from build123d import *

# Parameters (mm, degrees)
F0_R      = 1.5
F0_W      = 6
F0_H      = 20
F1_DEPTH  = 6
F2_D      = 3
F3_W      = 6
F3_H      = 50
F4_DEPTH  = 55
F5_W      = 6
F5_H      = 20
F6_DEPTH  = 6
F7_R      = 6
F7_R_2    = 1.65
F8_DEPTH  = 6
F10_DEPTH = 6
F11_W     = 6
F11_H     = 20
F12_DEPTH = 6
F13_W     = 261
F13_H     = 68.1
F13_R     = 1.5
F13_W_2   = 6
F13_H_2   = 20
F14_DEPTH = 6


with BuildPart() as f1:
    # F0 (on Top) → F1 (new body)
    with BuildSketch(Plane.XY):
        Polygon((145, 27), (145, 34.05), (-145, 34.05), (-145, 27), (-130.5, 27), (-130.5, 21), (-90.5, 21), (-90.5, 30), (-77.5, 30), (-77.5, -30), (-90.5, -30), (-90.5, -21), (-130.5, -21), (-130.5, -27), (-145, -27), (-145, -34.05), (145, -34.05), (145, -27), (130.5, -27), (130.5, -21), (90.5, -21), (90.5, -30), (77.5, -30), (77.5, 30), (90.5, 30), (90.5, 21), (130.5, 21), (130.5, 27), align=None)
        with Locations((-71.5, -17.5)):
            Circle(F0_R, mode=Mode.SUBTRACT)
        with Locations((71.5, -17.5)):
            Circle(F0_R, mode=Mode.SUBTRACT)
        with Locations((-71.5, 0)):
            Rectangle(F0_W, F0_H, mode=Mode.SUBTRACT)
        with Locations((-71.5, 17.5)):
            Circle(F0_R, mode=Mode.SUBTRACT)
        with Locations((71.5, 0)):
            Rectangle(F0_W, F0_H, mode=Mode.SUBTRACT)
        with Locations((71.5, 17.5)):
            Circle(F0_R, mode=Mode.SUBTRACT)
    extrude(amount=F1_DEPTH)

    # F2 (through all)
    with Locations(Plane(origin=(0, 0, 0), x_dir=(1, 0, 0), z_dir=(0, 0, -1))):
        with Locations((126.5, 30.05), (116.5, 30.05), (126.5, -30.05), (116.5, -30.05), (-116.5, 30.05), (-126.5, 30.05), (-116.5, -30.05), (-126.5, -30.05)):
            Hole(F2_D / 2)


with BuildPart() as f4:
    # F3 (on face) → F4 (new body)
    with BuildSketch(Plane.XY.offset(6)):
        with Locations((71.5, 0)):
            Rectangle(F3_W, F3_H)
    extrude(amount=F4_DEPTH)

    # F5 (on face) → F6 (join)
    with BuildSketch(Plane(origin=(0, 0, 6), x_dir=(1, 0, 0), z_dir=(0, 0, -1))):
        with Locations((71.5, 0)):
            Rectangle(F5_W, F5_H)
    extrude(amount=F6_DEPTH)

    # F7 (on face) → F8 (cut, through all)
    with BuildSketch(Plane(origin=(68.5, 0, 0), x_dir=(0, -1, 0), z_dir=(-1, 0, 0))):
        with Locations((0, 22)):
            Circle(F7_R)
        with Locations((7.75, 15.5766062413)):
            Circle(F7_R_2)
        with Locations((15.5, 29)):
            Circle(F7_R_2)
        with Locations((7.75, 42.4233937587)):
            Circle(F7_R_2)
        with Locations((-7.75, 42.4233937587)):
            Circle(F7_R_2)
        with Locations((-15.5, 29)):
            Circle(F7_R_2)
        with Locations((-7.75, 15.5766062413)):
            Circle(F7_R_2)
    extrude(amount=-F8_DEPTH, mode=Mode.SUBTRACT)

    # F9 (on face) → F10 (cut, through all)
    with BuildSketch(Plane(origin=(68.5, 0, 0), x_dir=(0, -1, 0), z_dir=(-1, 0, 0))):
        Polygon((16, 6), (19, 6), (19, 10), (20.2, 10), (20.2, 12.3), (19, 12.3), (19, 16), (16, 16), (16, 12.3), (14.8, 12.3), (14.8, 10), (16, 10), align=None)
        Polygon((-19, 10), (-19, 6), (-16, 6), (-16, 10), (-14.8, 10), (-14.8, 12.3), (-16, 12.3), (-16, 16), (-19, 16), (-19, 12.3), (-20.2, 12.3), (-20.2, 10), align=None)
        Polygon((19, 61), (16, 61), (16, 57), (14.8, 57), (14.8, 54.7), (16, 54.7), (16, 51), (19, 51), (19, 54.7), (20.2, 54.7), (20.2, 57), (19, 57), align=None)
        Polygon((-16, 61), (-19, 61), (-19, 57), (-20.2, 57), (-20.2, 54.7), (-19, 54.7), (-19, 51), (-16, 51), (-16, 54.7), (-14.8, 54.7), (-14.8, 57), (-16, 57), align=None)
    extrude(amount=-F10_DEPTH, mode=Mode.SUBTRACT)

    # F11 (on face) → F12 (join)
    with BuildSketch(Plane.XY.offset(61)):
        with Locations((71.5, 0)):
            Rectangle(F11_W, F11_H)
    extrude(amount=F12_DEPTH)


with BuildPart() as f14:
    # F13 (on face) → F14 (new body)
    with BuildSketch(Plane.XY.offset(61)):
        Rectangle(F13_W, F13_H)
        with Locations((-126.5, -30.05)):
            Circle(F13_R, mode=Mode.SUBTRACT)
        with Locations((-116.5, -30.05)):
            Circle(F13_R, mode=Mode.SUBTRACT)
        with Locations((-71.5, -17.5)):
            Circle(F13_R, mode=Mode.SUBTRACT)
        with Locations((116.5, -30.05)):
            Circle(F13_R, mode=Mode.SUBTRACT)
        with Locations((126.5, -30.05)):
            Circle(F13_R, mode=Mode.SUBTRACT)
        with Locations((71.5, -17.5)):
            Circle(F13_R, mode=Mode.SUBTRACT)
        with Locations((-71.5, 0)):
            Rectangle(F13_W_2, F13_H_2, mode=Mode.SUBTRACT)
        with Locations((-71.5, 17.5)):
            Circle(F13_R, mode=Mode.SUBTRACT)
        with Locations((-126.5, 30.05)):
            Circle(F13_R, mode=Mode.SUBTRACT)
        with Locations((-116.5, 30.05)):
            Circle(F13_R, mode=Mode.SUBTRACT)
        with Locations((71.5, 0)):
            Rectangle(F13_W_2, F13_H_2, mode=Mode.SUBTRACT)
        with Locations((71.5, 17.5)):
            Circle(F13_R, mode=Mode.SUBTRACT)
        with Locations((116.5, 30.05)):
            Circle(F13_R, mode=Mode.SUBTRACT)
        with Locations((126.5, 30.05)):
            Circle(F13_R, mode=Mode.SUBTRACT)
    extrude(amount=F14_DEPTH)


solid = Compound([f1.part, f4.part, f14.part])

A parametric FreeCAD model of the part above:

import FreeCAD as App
import Part
import Sketcher
from FreeCAD import Vector
Q = App.Units.Quantity

doc = App.newDocument("Part")
body = doc.addObject("PartDesign::Body", "Body")

sketch1 = body.newObject("Sketcher::SketchObject", "Sketch")
sketch1.AttachmentSupport = (doc.getObject("XY_Plane"), [""])
sketch1.MapMode = "FlatFace"
sketch1.addGeometry([
    Part.LineSegment(Vector(145, 27, 0), Vector(145, 34.05, 0)),
    Part.LineSegment(Vector(145, 34.05, 0), Vector(-145, 34.05, 0)),
    Part.LineSegment(Vector(-145, 34.05, 0), Vector(-145, 27, 0)),
    Part.LineSegment(Vector(-145, 27, 0), Vector(-130.5, 27, 0)),
    Part.LineSegment(Vector(-130.5, 27, 0), Vector(-130.5, 21, 0)),
    Part.LineSegment(Vector(-130.5, 21, 0), Vector(-90.5, 21, 0)),
    Part.LineSegment(Vector(-90.5, 21, 0), Vector(-90.5, 30, 0)),
    Part.LineSegment(Vector(-90.5, 30, 0), Vector(-77.5, 30, 0)),
    Part.LineSegment(Vector(-77.5, 30, 0), Vector(-77.5, -30, 0)),
    Part.LineSegment(Vector(-77.5, -30, 0), Vector(-90.5, -30, 0)),
    Part.LineSegment(Vector(-90.5, -30, 0), Vector(-90.5, -21, 0)),
    Part.LineSegment(Vector(-90.5, -21, 0), Vector(-130.5, -21, 0)),
    Part.LineSegment(Vector(-130.5, -21, 0), Vector(-130.5, -27, 0)),
    Part.LineSegment(Vector(-130.5, -27, 0), Vector(-145, -27, 0)),
    Part.LineSegment(Vector(-145, -27, 0), Vector(-145, -34.05, 0)),
    Part.LineSegment(Vector(-145, -34.05, 0), Vector(145, -34.05, 0)),
    Part.LineSegment(Vector(145, -34.05, 0), Vector(145, -27, 0)),
    Part.LineSegment(Vector(145, -27, 0), Vector(130.5, -27, 0)),
    Part.LineSegment(Vector(130.5, -27, 0), Vector(130.5, -21, 0)),
    Part.LineSegment(Vector(130.5, -21, 0), Vector(90.5, -21, 0)),
    Part.LineSegment(Vector(90.5, -21, 0), Vector(90.5, -30, 0)),
    Part.LineSegment(Vector(90.5, -30, 0), Vector(77.5, -30, 0)),
    Part.LineSegment(Vector(77.5, -30, 0), Vector(77.5, 30, 0)),
    Part.LineSegment(Vector(77.5, 30, 0), Vector(90.5, 30, 0)),
    Part.LineSegment(Vector(90.5, 30, 0), Vector(90.5, 21, 0)),
    Part.LineSegment(Vector(90.5, 21, 0), Vector(130.5, 21, 0)),
    Part.LineSegment(Vector(130.5, 21, 0), Vector(130.5, 27, 0)),
    Part.LineSegment(Vector(130.5, 27, 0), Vector(145, 27, 0)),
    Part.Circle(Vector(-71.5, -17.5, 0), Vector(0, 0, 1), 1.5),
    Part.Circle(Vector(71.5, -17.5, 0), Vector(0, 0, 1), 1.5),
    Part.LineSegment(Vector(-68.5, -10, 0), Vector(-74.5, -10, 0)),
    Part.LineSegment(Vector(-74.5, -10, 0), Vector(-74.5, 10, 0)),
    Part.LineSegment(Vector(-74.5, 10, 0), Vector(-68.5, 10, 0)),
    Part.LineSegment(Vector(-68.5, 10, 0), Vector(-68.5, -10, 0)),
    Part.Circle(Vector(-71.5, 17.5, 0), Vector(0, 0, 1), 1.5),
    Part.LineSegment(Vector(74.5, -10, 0), Vector(68.5, -10, 0)),
    Part.LineSegment(Vector(68.5, -10, 0), Vector(68.5, 10, 0)),
    Part.LineSegment(Vector(68.5, 10, 0), Vector(74.5, 10, 0)),
    Part.LineSegment(Vector(74.5, 10, 0), Vector(74.5, -10, 0)),
    Part.Circle(Vector(71.5, 17.5, 0), Vector(0, 0, 1), 1.5),
], False)
sketch1.addConstraint([
    Sketcher.Constraint("Coincident", 0, 2, 1, 1),
    Sketcher.Constraint("Coincident", 1, 2, 2, 1),
    Sketcher.Constraint("Coincident", 2, 2, 3, 1),
    Sketcher.Constraint("Coincident", 3, 2, 4, 1),
    Sketcher.Constraint("Coincident", 4, 2, 5, 1),
    Sketcher.Constraint("Coincident", 5, 2, 6, 1),
    Sketcher.Constraint("Coincident", 6, 2, 7, 1),
    Sketcher.Constraint("Coincident", 7, 2, 8, 1),
    Sketcher.Constraint("Coincident", 8, 2, 9, 1),
    Sketcher.Constraint("Coincident", 9, 2, 10, 1),
    Sketcher.Constraint("Coincident", 10, 2, 11, 1),
    Sketcher.Constraint("Coincident", 11, 2, 12, 1),
    Sketcher.Constraint("Coincident", 12, 2, 13, 1),
    Sketcher.Constraint("Coincident", 13, 2, 14, 1),
    Sketcher.Constraint("Coincident", 14, 2, 15, 1),
    Sketcher.Constraint("Coincident", 15, 2, 16, 1),
    Sketcher.Constraint("Coincident", 16, 2, 17, 1),
    Sketcher.Constraint("Coincident", 17, 2, 18, 1),
    Sketcher.Constraint("Coincident", 18, 2, 19, 1),
    Sketcher.Constraint("Coincident", 19, 2, 20, 1),
    Sketcher.Constraint("Coincident", 20, 2, 21, 1),
    Sketcher.Constraint("Coincident", 21, 2, 22, 1),
    Sketcher.Constraint("Coincident", 22, 2, 23, 1),
    Sketcher.Constraint("Coincident", 23, 2, 24, 1),
    Sketcher.Constraint("Coincident", 24, 2, 25, 1),
    Sketcher.Constraint("Coincident", 25, 2, 26, 1),
    Sketcher.Constraint("Coincident", 26, 2, 27, 1),
    Sketcher.Constraint("Coincident", 27, 2, 0, 1),
    Sketcher.Constraint("Coincident", 30, 2, 31, 1),
    Sketcher.Constraint("Coincident", 31, 2, 32, 1),
    Sketcher.Constraint("Coincident", 32, 2, 33, 1),
    Sketcher.Constraint("Coincident", 33, 2, 30, 1),
    Sketcher.Constraint("Coincident", 35, 2, 36, 1),
    Sketcher.Constraint("Coincident", 36, 2, 37, 1),
    Sketcher.Constraint("Coincident", 37, 2, 38, 1),
    Sketcher.Constraint("Coincident", 38, 2, 35, 1),
    Sketcher.Constraint("Vertical", 0),
    Sketcher.Constraint("Horizontal", 1),
    Sketcher.Constraint("Vertical", 2),
    Sketcher.Constraint("Horizontal", 3),
    Sketcher.Constraint("Vertical", 4),
    Sketcher.Constraint("Horizontal", 5),
    Sketcher.Constraint("Vertical", 6),
    Sketcher.Constraint("Horizontal", 7),
    Sketcher.Constraint("Vertical", 8),
    Sketcher.Constraint("Horizontal", 9),
    Sketcher.Constraint("Vertical", 10),
    Sketcher.Constraint("Horizontal", 11),
    Sketcher.Constraint("Vertical", 12),
    Sketcher.Constraint("Horizontal", 13),
    Sketcher.Constraint("Vertical", 14),
    Sketcher.Constraint("Horizontal", 15),
    Sketcher.Constraint("Vertical", 16),
    Sketcher.Constraint("Horizontal", 17),
    Sketcher.Constraint("Vertical", 18),
    Sketcher.Constraint("Horizontal", 19),
    Sketcher.Constraint("Vertical", 20),
    Sketcher.Constraint("Horizontal", 21),
    Sketcher.Constraint("Vertical", 22),
    Sketcher.Constraint("Horizontal", 23),
    Sketcher.Constraint("Vertical", 24),
    Sketcher.Constraint("Horizontal", 25),
    Sketcher.Constraint("Vertical", 26),
    Sketcher.Constraint("Horizontal", 27),
    Sketcher.Constraint("Horizontal", 30),
    Sketcher.Constraint("Vertical", 31),
    Sketcher.Constraint("Horizontal", 32),
    Sketcher.Constraint("Vertical", 33),
    Sketcher.Constraint("Horizontal", 35),
    Sketcher.Constraint("Vertical", 36),
    Sketcher.Constraint("Horizontal", 37),
    Sketcher.Constraint("Vertical", 38),
    Sketcher.Constraint("Equal", 28, 29),
    Sketcher.Constraint("Equal", 29, 34),
    Sketcher.Constraint("Equal", 34, 39),
    Sketcher.Constraint("Symmetric", 29, 3, 34, 3, -1, 1),
    Sketcher.Constraint("Symmetric", 28, 3, 39, 3, -1, 1),
    Sketcher.Constraint("Symmetric", 0, 2, 14, 2, -1, 1),
    Sketcher.Constraint("Symmetric", 2, 2, 16, 2, -1, 1),
    Sketcher.Constraint("Symmetric", 4, 2, 18, 2, -1, 1),
    Sketcher.Constraint("Symmetric", 6, 2, 20, 2, -1, 1),
    Sketcher.Constraint("Symmetric", 8, 2, 22, 2, -1, 1),
    Sketcher.Constraint("Symmetric", 10, 2, 24, 2, -1, 1),
    Sketcher.Constraint("Symmetric", 12, 2, 26, 2, -1, 1),
    Sketcher.Constraint("Symmetric", 32, 2, 35, 2, -1, 1),
    Sketcher.Constraint("Symmetric", 30, 2, 37, 2, -1, 1),
    Sketcher.Constraint("Symmetric", 28, 3, 29, 3, -2),
    Sketcher.Constraint("Symmetric", 13, 2, 16, 2, -2),
    Sketcher.Constraint("Symmetric", 11, 2, 18, 2, -2),
    Sketcher.Constraint("Symmetric", 9, 2, 20, 2, -2),
    Sketcher.Constraint("Horizontal", 33, 2, 35, 2),
    Sketcher.Constraint("Equal", 37, 4),
    Sketcher.Constraint("Diameter", 28, Q("3 mm")),
    Sketcher.Constraint("DistanceX", 1, 2, 1, 1, Q("290 mm")),
    Sketcher.Constraint("DistanceX", 5, 1, 5, 2, Q("40 mm")),
    Sketcher.Constraint("DistanceX", 7, 1, 7, 2, Q("13 mm")),
    Sketcher.Constraint("DistanceX", 30, 2, 30, 1, Q("6 mm")),
    Sketcher.Constraint("DistanceY", 6, 1, 6, 2, Q("9 mm")),
    Sketcher.Constraint("DistanceY", 8, 2, 8, 1, Q("60 mm")),
    Sketcher.Constraint("DistanceY", 31, 1, 31, 2, Q("20 mm")),
    Sketcher.Constraint("DistanceX", 3, 1, 3, 2, Q("14.5 mm")),
    Sketcher.Constraint("DistanceX", 28, 3, 29, 3, Q("143 mm")),
    Sketcher.Constraint("DistanceY", 28, 3, 34, 3, Q("35 mm")),
    Sketcher.Constraint("DistanceX", 30, 2, 28, 3, Q("3 mm")),
    Sketcher.Constraint("DistanceY", 0, 1, 0, 2, Q("7.05 mm")),
])
pad1 = body.newObject("PartDesign::Pad", "Pad")
pad1.Profile = sketch1
pad1.Length = 6

sketch2 = body.newObject("Sketcher::SketchObject", "Sketch001")
sketch2.AttachmentSupport = (doc.getObject("XY_Plane"), [""])
sketch2.MapMode = "FlatFace"
sketch2.addGeometry([
    Part.Circle(Vector(126.5, -30.05, 0), Vector(0, 0, 1), 1.5),
    Part.Circle(Vector(116.5, -30.05, 0), Vector(0, 0, 1), 1.5),
    Part.Circle(Vector(126.5, 30.05, 0), Vector(0, 0, 1), 1.5),
    Part.Circle(Vector(116.5, 30.05, 0), Vector(0, 0, 1), 1.5),
    Part.Circle(Vector(-116.5, -30.05, 0), Vector(0, 0, 1), 1.5),
    Part.Circle(Vector(-126.5, -30.05, 0), Vector(0, 0, 1), 1.5),
    Part.Circle(Vector(-116.5, 30.05, 0), Vector(0, 0, 1), 1.5),
    Part.Circle(Vector(-126.5, 30.05, 0), Vector(0, 0, 1), 1.5),
], False)
sketch2.addConstraint([
    Sketcher.Constraint("Equal", 0, 1),
    Sketcher.Constraint("Equal", 1, 2),
    Sketcher.Constraint("Equal", 2, 3),
    Sketcher.Constraint("Equal", 3, 4),
    Sketcher.Constraint("Equal", 4, 5),
    Sketcher.Constraint("Equal", 5, 6),
    Sketcher.Constraint("Equal", 6, 7),
    Sketcher.Constraint("Symmetric", 3, 3, 4, 3, -1, 1),
    Sketcher.Constraint("Symmetric", 2, 3, 5, 3, -1, 1),
    Sketcher.Constraint("Symmetric", 1, 3, 6, 3, -1, 1),
    Sketcher.Constraint("Symmetric", 0, 3, 7, 3, -1, 1),
    Sketcher.Constraint("Symmetric", 1, 3, 4, 3, -2),
    Sketcher.Constraint("Symmetric", 0, 3, 5, 3, -2),
    Sketcher.Constraint("Horizontal", 0, 3, 1, 3),
    Sketcher.Constraint("Diameter", 0, Q("3 mm")),
    Sketcher.Constraint("DistanceX", 1, 3, 0, 3, Q("10 mm")),
    Sketcher.Constraint("DistanceX", 4, 3, 1, 3, Q("233 mm")),
    Sketcher.Constraint("DistanceY", 0, 3, 2, 3, Q("60.1 mm")),
])
doc.recompute()
hole = body.newObject("PartDesign::Hole", "Hole")
hole.Profile = sketch2
hole.ThreadType = "None"
hole.Diameter = 3
hole.DepthType = "ThroughAll"
hole.Reversed = True
body2 = doc.addObject("PartDesign::Body", "Body001")

sketch3 = body2.newObject("Sketcher::SketchObject", "Sketch002")
sketch3.AttachmentSupport = (doc.getObject("XY_Plane001"), [""])
sketch3.MapMode = "FlatFace"
sketch3.AttachmentOffset = App.Placement(Vector(0, 0, 6), App.Rotation())
sketch3.addGeometry([
    Part.LineSegment(Vector(68.5, 25, 0), Vector(68.5, -25, 0)),
    Part.LineSegment(Vector(68.5, -25, 0), Vector(74.5, -25, 0)),
    Part.LineSegment(Vector(74.5, -25, 0), Vector(74.5, 25, 0)),
    Part.LineSegment(Vector(74.5, 25, 0), Vector(68.5, 25, 0)),
], False)
sketch3.addConstraint([
    Sketcher.Constraint("Coincident", 0, 2, 1, 1),
    Sketcher.Constraint("Coincident", 1, 2, 2, 1),
    Sketcher.Constraint("Coincident", 2, 2, 3, 1),
    Sketcher.Constraint("Coincident", 3, 2, 0, 1),
    Sketcher.Constraint("Vertical", 0),
    Sketcher.Constraint("Horizontal", 1),
    Sketcher.Constraint("Vertical", 2),
    Sketcher.Constraint("Horizontal", 3),
    Sketcher.Constraint("DistanceX", 1, 1, 1, 2, Q("6 mm")),
    Sketcher.Constraint("DistanceY", 0, 2, 0, 1, Q("50 mm")),
    Sketcher.Constraint("DistanceY", 0, 2, -1, 1, Q("25 mm")),
    Sketcher.Constraint("DistanceX", -1, 1, 0, 2, Q("68.5 mm")),
])
pad2 = body2.newObject("PartDesign::Pad", "Pad001")
pad2.Profile = sketch3
pad2.Length = 55

sketch4 = body2.newObject("Sketcher::SketchObject", "Sketch003")
sketch4.AttachmentSupport = (doc.getObject("XY_Plane001"), [""])
sketch4.MapMode = "FlatFace"
sketch4.AttachmentOffset = App.Placement(Vector(0, 0, 6), App.Rotation())
sketch4.addGeometry([
    Part.LineSegment(Vector(68.5, -10, 0), Vector(68.5, 10, 0)),
    Part.LineSegment(Vector(68.5, 10, 0), Vector(74.5, 10, 0)),
    Part.LineSegment(Vector(74.5, 10, 0), Vector(74.5, -10, 0)),
    Part.LineSegment(Vector(74.5, -10, 0), Vector(68.5, -10, 0)),
], False)
sketch4.addConstraint([
    Sketcher.Constraint("Coincident", 0, 2, 1, 1),
    Sketcher.Constraint("Coincident", 1, 2, 2, 1),
    Sketcher.Constraint("Coincident", 2, 2, 3, 1),
    Sketcher.Constraint("Coincident", 3, 2, 0, 1),
    Sketcher.Constraint("Vertical", 0),
    Sketcher.Constraint("Horizontal", 1),
    Sketcher.Constraint("Vertical", 2),
    Sketcher.Constraint("Horizontal", 3),
    Sketcher.Constraint("DistanceX", 1, 1, 1, 2, Q("6 mm")),
    Sketcher.Constraint("DistanceY", 0, 1, 0, 2, Q("20 mm")),
    Sketcher.Constraint("DistanceY", -1, 1, 0, 2, Q("10 mm")),
    Sketcher.Constraint("DistanceX", -1, 1, 0, 2, Q("68.5 mm")),
])
pad3 = body2.newObject("PartDesign::Pad", "Pad002")
pad3.Profile = sketch4
pad3.Length = 6
pad3.Reversed = True

sketch5 = body2.newObject("Sketcher::SketchObject", "Sketch004")
sketch5.AttachmentSupport = (doc.getObject("YZ_Plane001"), [""])
sketch5.MapMode = "FlatFace"
sketch5.AttachmentOffset = App.Placement(Vector(0, 0, 68.5), App.Rotation())
sketch5.addGeometry([
    Part.Circle(Vector(0, 22, 0), Vector(0, 0, 1), 6),
    Part.Circle(Vector(-7.75, 15.576606, 0), Vector(0, 0, 1), 1.65),
    Part.Circle(Vector(-15.5, 29, 0), Vector(0, 0, 1), 1.65),
    Part.Circle(Vector(-7.75, 42.423394, 0), Vector(0, 0, 1), 1.65),
    Part.Circle(Vector(7.75, 42.423394, 0), Vector(0, 0, 1), 1.65),
    Part.Circle(Vector(15.5, 29, 0), Vector(0, 0, 1), 1.65),
    Part.Circle(Vector(7.75, 15.576606, 0), Vector(0, 0, 1), 1.65),
], False)
sketch5.addConstraint([
    Sketcher.Constraint("Equal", 1, 2),
    Sketcher.Constraint("Equal", 2, 3),
    Sketcher.Constraint("Equal", 3, 4),
    Sketcher.Constraint("Equal", 4, 5),
    Sketcher.Constraint("Equal", 5, 6),
    Sketcher.Constraint("Symmetric", 3, 3, 4, 3, -2),
    Sketcher.Constraint("Symmetric", 2, 3, 5, 3, -2),
    Sketcher.Constraint("Symmetric", 1, 3, 6, 3, -2),
    Sketcher.Constraint("PointOnObject", 0, 3, -2),
    Sketcher.Constraint("Vertical", 1, 3, 3, 3),
    Sketcher.Constraint("Diameter", 0, Q("12 mm")),
    Sketcher.Constraint("Diameter", 1, Q("3.3 mm")),
    Sketcher.Constraint("DistanceY", -1, 1, 0, 3, Q("22 mm")),
    Sketcher.Constraint("DistanceY", -1, 1, 2, 3, Q("29 mm")),
    Sketcher.Constraint("DistanceX", 2, 3, 5, 3, Q("31 mm")),
    Sketcher.Constraint("DistanceX", 3, 3, 4, 3, Q("15.5 mm")),
    Sketcher.Constraint("DistanceY", -1, 1, 1, 3, Q("15.576606 mm")),
    Sketcher.Constraint("DistanceY", -1, 1, 3, 3, Q("42.423394 mm")),
])
pocket1 = body2.newObject("PartDesign::Pocket", "Pocket")
pocket1.Profile = sketch5
pocket1.Type = "ThroughAll"
pocket1.Reversed = True

sketch6 = body2.newObject("Sketcher::SketchObject", "Sketch005")
sketch6.AttachmentSupport = (doc.getObject("YZ_Plane001"), [""])
sketch6.MapMode = "FlatFace"
sketch6.AttachmentOffset = App.Placement(Vector(0, 0, 68.5), App.Rotation())
sketch6.addGeometry([
    Part.LineSegment(Vector(-16, 6, 0), Vector(-19, 6, 0)),
    Part.LineSegment(Vector(-19, 6, 0), Vector(-19, 10, 0)),
    Part.LineSegment(Vector(-19, 10, 0), Vector(-20.2, 10, 0)),
    Part.LineSegment(Vector(-20.2, 10, 0), Vector(-20.2, 12.3, 0)),
    Part.LineSegment(Vector(-20.2, 12.3, 0), Vector(-19, 12.3, 0)),
    Part.LineSegment(Vector(-19, 12.3, 0), Vector(-19, 16, 0)),
    Part.LineSegment(Vector(-19, 16, 0), Vector(-16, 16, 0)),
    Part.LineSegment(Vector(-16, 16, 0), Vector(-16, 12.3, 0)),
    Part.LineSegment(Vector(-16, 12.3, 0), Vector(-14.8, 12.3, 0)),
    Part.LineSegment(Vector(-14.8, 12.3, 0), Vector(-14.8, 10, 0)),
    Part.LineSegment(Vector(-14.8, 10, 0), Vector(-16, 10, 0)),
    Part.LineSegment(Vector(-16, 10, 0), Vector(-16, 6, 0)),
    Part.LineSegment(Vector(19, 10, 0), Vector(19, 6, 0)),
    Part.LineSegment(Vector(19, 6, 0), Vector(16, 6, 0)),
    Part.LineSegment(Vector(16, 6, 0), Vector(16, 10, 0)),
    Part.LineSegment(Vector(16, 10, 0), Vector(14.8, 10, 0)),
    Part.LineSegment(Vector(14.8, 10, 0), Vector(14.8, 12.3, 0)),
    Part.LineSegment(Vector(14.8, 12.3, 0), Vector(16, 12.3, 0)),
    Part.LineSegment(Vector(16, 12.3, 0), Vector(16, 16, 0)),
    Part.LineSegment(Vector(16, 16, 0), Vector(19, 16, 0)),
    Part.LineSegment(Vector(19, 16, 0), Vector(19, 12.3, 0)),
    Part.LineSegment(Vector(19, 12.3, 0), Vector(20.2, 12.3, 0)),
    Part.LineSegment(Vector(20.2, 12.3, 0), Vector(20.2, 10, 0)),
    Part.LineSegment(Vector(20.2, 10, 0), Vector(19, 10, 0)),
    Part.LineSegment(Vector(-19, 61, 0), Vector(-16, 61, 0)),
    Part.LineSegment(Vector(-16, 61, 0), Vector(-16, 57, 0)),
    Part.LineSegment(Vector(-16, 57, 0), Vector(-14.8, 57, 0)),
    Part.LineSegment(Vector(-14.8, 57, 0), Vector(-14.8, 54.7, 0)),
    Part.LineSegment(Vector(-14.8, 54.7, 0), Vector(-16, 54.7, 0)),
    Part.LineSegment(Vector(-16, 54.7, 0), Vector(-16, 51, 0)),
    Part.LineSegment(Vector(-16, 51, 0), Vector(-19, 51, 0)),
    Part.LineSegment(Vector(-19, 51, 0), Vector(-19, 54.7, 0)),
    Part.LineSegment(Vector(-19, 54.7, 0), Vector(-20.2, 54.7, 0)),
    Part.LineSegment(Vector(-20.2, 54.7, 0), Vector(-20.2, 57, 0)),
    Part.LineSegment(Vector(-20.2, 57, 0), Vector(-19, 57, 0)),
    Part.LineSegment(Vector(-19, 57, 0), Vector(-19, 61, 0)),
    Part.LineSegment(Vector(16, 61, 0), Vector(19, 61, 0)),
    Part.LineSegment(Vector(19, 61, 0), Vector(19, 57, 0)),
    Part.LineSegment(Vector(19, 57, 0), Vector(20.2, 57, 0)),
    Part.LineSegment(Vector(20.2, 57, 0), Vector(20.2, 54.7, 0)),
    Part.LineSegment(Vector(20.2, 54.7, 0), Vector(19, 54.7, 0)),
    Part.LineSegment(Vector(19, 54.7, 0), Vector(19, 51, 0)),
    Part.LineSegment(Vector(19, 51, 0), Vector(16, 51, 0)),
    Part.LineSegment(Vector(16, 51, 0), Vector(16, 54.7, 0)),
    Part.LineSegment(Vector(16, 54.7, 0), Vector(14.8, 54.7, 0)),
    Part.LineSegment(Vector(14.8, 54.7, 0), Vector(14.8, 57, 0)),
    Part.LineSegment(Vector(14.8, 57, 0), Vector(16, 57, 0)),
    Part.LineSegment(Vector(16, 57, 0), Vector(16, 61, 0)),
], False)
sketch6.addConstraint([
    Sketcher.Constraint("Coincident", 0, 2, 1, 1),
    Sketcher.Constraint("Coincident", 1, 2, 2, 1),
    Sketcher.Constraint("Coincident", 2, 2, 3, 1),
    Sketcher.Constraint("Coincident", 3, 2, 4, 1),
    Sketcher.Constraint("Coincident", 4, 2, 5, 1),
    Sketcher.Constraint("Coincident", 5, 2, 6, 1),
    Sketcher.Constraint("Coincident", 6, 2, 7, 1),
    Sketcher.Constraint("Coincident", 7, 2, 8, 1),
    Sketcher.Constraint("Coincident", 8, 2, 9, 1),
    Sketcher.Constraint("Coincident", 9, 2, 10, 1),
    Sketcher.Constraint("Coincident", 10, 2, 11, 1),
    Sketcher.Constraint("Coincident", 11, 2, 0, 1),
    Sketcher.Constraint("Coincident", 12, 2, 13, 1),
    Sketcher.Constraint("Coincident", 13, 2, 14, 1),
    Sketcher.Constraint("Coincident", 14, 2, 15, 1),
    Sketcher.Constraint("Coincident", 15, 2, 16, 1),
    Sketcher.Constraint("Coincident", 16, 2, 17, 1),
    Sketcher.Constraint("Coincident", 17, 2, 18, 1),
    Sketcher.Constraint("Coincident", 18, 2, 19, 1),
    Sketcher.Constraint("Coincident", 19, 2, 20, 1),
    Sketcher.Constraint("Coincident", 20, 2, 21, 1),
    Sketcher.Constraint("Coincident", 21, 2, 22, 1),
    Sketcher.Constraint("Coincident", 22, 2, 23, 1),
    Sketcher.Constraint("Coincident", 23, 2, 12, 1),
    Sketcher.Constraint("Coincident", 24, 2, 25, 1),
    Sketcher.Constraint("Coincident", 25, 2, 26, 1),
    Sketcher.Constraint("Coincident", 26, 2, 27, 1),
    Sketcher.Constraint("Coincident", 27, 2, 28, 1),
    Sketcher.Constraint("Coincident", 28, 2, 29, 1),
    Sketcher.Constraint("Coincident", 29, 2, 30, 1),
    Sketcher.Constraint("Coincident", 30, 2, 31, 1),
    Sketcher.Constraint("Coincident", 31, 2, 32, 1),
    Sketcher.Constraint("Coincident", 32, 2, 33, 1),
    Sketcher.Constraint("Coincident", 33, 2, 34, 1),
    Sketcher.Constraint("Coincident", 34, 2, 35, 1),
    Sketcher.Constraint("Coincident", 35, 2, 24, 1),
    Sketcher.Constraint("Coincident", 36, 2, 37, 1),
    Sketcher.Constraint("Coincident", 37, 2, 38, 1),
    Sketcher.Constraint("Coincident", 38, 2, 39, 1),
    Sketcher.Constraint("Coincident", 39, 2, 40, 1),
    Sketcher.Constraint("Coincident", 40, 2, 41, 1),
    Sketcher.Constraint("Coincident", 41, 2, 42, 1),
    Sketcher.Constraint("Coincident", 42, 2, 43, 1),
    Sketcher.Constraint("Coincident", 43, 2, 44, 1),
    Sketcher.Constraint("Coincident", 44, 2, 45, 1),
    Sketcher.Constraint("Coincident", 45, 2, 46, 1),
    Sketcher.Constraint("Coincident", 46, 2, 47, 1),
    Sketcher.Constraint("Coincident", 47, 2, 36, 1),
    Sketcher.Constraint("Horizontal", 0),
    Sketcher.Constraint("Vertical", 1),
    Sketcher.Constraint("Horizontal", 2),
    Sketcher.Constraint("Vertical", 3),
    Sketcher.Constraint("Horizontal", 4),
    Sketcher.Constraint("Vertical", 5),
    Sketcher.Constraint("Horizontal", 6),
    Sketcher.Constraint("Vertical", 7),
    Sketcher.Constraint("Horizontal", 8),
    Sketcher.Constraint("Vertical", 9),
    Sketcher.Constraint("Horizontal", 10),
    Sketcher.Constraint("Vertical", 11),
    Sketcher.Constraint("Vertical", 12),
    Sketcher.Constraint("Horizontal", 13),
    Sketcher.Constraint("Vertical", 14),
    Sketcher.Constraint("Horizontal", 15),
    Sketcher.Constraint("Vertical", 16),
    Sketcher.Constraint("Horizontal", 17),
    Sketcher.Constraint("Vertical", 18),
    Sketcher.Constraint("Horizontal", 19),
    Sketcher.Constraint("Vertical", 20),
    Sketcher.Constraint("Horizontal", 21),
    Sketcher.Constraint("Vertical", 22),
    Sketcher.Constraint("Horizontal", 23),
    Sketcher.Constraint("Horizontal", 24),
    Sketcher.Constraint("Vertical", 25),
    Sketcher.Constraint("Horizontal", 26),
    Sketcher.Constraint("Vertical", 27),
    Sketcher.Constraint("Horizontal", 28),
    Sketcher.Constraint("Vertical", 29),
    Sketcher.Constraint("Horizontal", 30),
    Sketcher.Constraint("Vertical", 31),
    Sketcher.Constraint("Horizontal", 32),
    Sketcher.Constraint("Vertical", 33),
    Sketcher.Constraint("Horizontal", 34),
    Sketcher.Constraint("Vertical", 35),
    Sketcher.Constraint("Horizontal", 36),
    Sketcher.Constraint("Vertical", 37),
    Sketcher.Constraint("Horizontal", 38),
    Sketcher.Constraint("Vertical", 39),
    Sketcher.Constraint("Horizontal", 40),
    Sketcher.Constraint("Vertical", 41),
    Sketcher.Constraint("Horizontal", 42),
    Sketcher.Constraint("Vertical", 43),
    Sketcher.Constraint("Horizontal", 44),
    Sketcher.Constraint("Vertical", 45),
    Sketcher.Constraint("Horizontal", 46),
    Sketcher.Constraint("Vertical", 47),
    Sketcher.Constraint("Symmetric", 0, 2, 12, 2, -2),
    Sketcher.Constraint("Symmetric", 10, 2, 14, 2, -2),
    Sketcher.Constraint("Symmetric", 8, 2, 16, 2, -2),
    Sketcher.Constraint("Symmetric", 6, 2, 18, 2, -2),
    Sketcher.Constraint("Symmetric", 4, 2, 20, 2, -2),
    Sketcher.Constraint("Symmetric", 2, 2, 22, 2, -2),
    Sketcher.Constraint("Symmetric", 35, 2, 36, 2, -2),
    Sketcher.Constraint("Symmetric", 33, 2, 38, 2, -2),
    Sketcher.Constraint("Symmetric", 31, 2, 40, 2, -2),
    Sketcher.Constraint("Symmetric", 29, 2, 42, 2, -2),
    Sketcher.Constraint("Symmetric", 27, 2, 44, 2, -2),
    Sketcher.Constraint("Symmetric", 25, 2, 46, 2, -2),
    Sketcher.Constraint("Horizontal", 4, 2, 7, 2),
    Sketcher.Constraint("Horizontal", 2, 2, 9, 2),
    Sketcher.Constraint("Horizontal", 28, 2, 31, 2),
    Sketcher.Constraint("Horizontal", 26, 2, 33, 2),
    Sketcher.Constraint("Vertical", 1, 2, 4, 2),
    Sketcher.Constraint("Vertical", 7, 2, 10, 2),
    Sketcher.Constraint("Vertical", 11, 2, 24, 2),
    Sketcher.Constraint("Vertical", 9, 2, 26, 2),
    Sketcher.Constraint("Vertical", 25, 2, 28, 2),
    Sketcher.Constraint("Vertical", 5, 2, 30, 2),
    Sketcher.Constraint("Vertical", 3, 2, 32, 2),
    Sketcher.Constraint("Vertical", 31, 2, 34, 2),
    Sketcher.Constraint("Equal", 4, 8),
    Sketcher.Constraint("Equal", 14, 25),
    Sketcher.Constraint("Equal", 22, 27),
    Sketcher.Constraint("Equal", 20, 29),
    Sketcher.Constraint("DistanceX", 0, 2, 0, 1, Q("3 mm")),
    Sketcher.Constraint("DistanceY", 1, 1, 1, 2, Q("4 mm")),
    Sketcher.Constraint("DistanceX", 2, 2, 2, 1, Q("1.2 mm")),
    Sketcher.Constraint("DistanceY", 3, 1, 3, 2, Q("2.3 mm")),
    Sketcher.Constraint("DistanceY", 5, 1, 5, 2, Q("3.7 mm")),
    Sketcher.Constraint("DistanceX", 0, 2, -1, 1, Q("19 mm")),
    Sketcher.Constraint("DistanceY", -1, 1, 0, 2, Q("6 mm")),
    Sketcher.Constraint("DistanceY", -1, 1, 24, 2, Q("61 mm")),
])
pocket2 = body2.newObject("PartDesign::Pocket", "Pocket001")
pocket2.Profile = sketch6
pocket2.Type = "ThroughAll"
pocket2.Reversed = True

sketch7 = body2.newObject("Sketcher::SketchObject", "Sketch006")
sketch7.AttachmentSupport = (doc.getObject("XY_Plane001"), [""])
sketch7.MapMode = "FlatFace"
sketch7.AttachmentOffset = App.Placement(Vector(0, 0, 61), App.Rotation())
sketch7.addGeometry([
    Part.LineSegment(Vector(68.5, 10, 0), Vector(68.5, -10, 0)),
    Part.LineSegment(Vector(68.5, -10, 0), Vector(74.5, -10, 0)),
    Part.LineSegment(Vector(74.5, -10, 0), Vector(74.5, 10, 0)),
    Part.LineSegment(Vector(74.5, 10, 0), Vector(68.5, 10, 0)),
], False)
sketch7.addConstraint([
    Sketcher.Constraint("Coincident", 0, 2, 1, 1),
    Sketcher.Constraint("Coincident", 1, 2, 2, 1),
    Sketcher.Constraint("Coincident", 2, 2, 3, 1),
    Sketcher.Constraint("Coincident", 3, 2, 0, 1),
    Sketcher.Constraint("Vertical", 0),
    Sketcher.Constraint("Horizontal", 1),
    Sketcher.Constraint("Vertical", 2),
    Sketcher.Constraint("Horizontal", 3),
    Sketcher.Constraint("DistanceX", 1, 1, 1, 2, Q("6 mm")),
    Sketcher.Constraint("DistanceY", 0, 2, 0, 1, Q("20 mm")),
    Sketcher.Constraint("DistanceY", 0, 2, -1, 1, Q("10 mm")),
    Sketcher.Constraint("DistanceX", -1, 1, 0, 2, Q("68.5 mm")),
])
pad4 = body2.newObject("PartDesign::Pad", "Pad003")
pad4.Profile = sketch7
pad4.Length = 6
body3 = doc.addObject("PartDesign::Body", "Body002")

sketch8 = body3.newObject("Sketcher::SketchObject", "Sketch007")
sketch8.AttachmentSupport = (doc.getObject("XY_Plane002"), [""])
sketch8.MapMode = "FlatFace"
sketch8.AttachmentOffset = App.Placement(Vector(0, 0, 61), App.Rotation())
sketch8.addGeometry([
    Part.LineSegment(Vector(-130.5, 34.05, 0), Vector(-130.5, -34.05, 0)),
    Part.LineSegment(Vector(-130.5, -34.05, 0), Vector(130.5, -34.05, 0)),
    Part.LineSegment(Vector(130.5, -34.05, 0), Vector(130.5, 34.05, 0)),
    Part.LineSegment(Vector(130.5, 34.05, 0), Vector(-130.5, 34.05, 0)),
    Part.Circle(Vector(-126.5, -30.05, 0), Vector(0, 0, 1), 1.5),
    Part.Circle(Vector(-116.5, -30.05, 0), Vector(0, 0, 1), 1.5),
    Part.Circle(Vector(-71.5, -17.5, 0), Vector(0, 0, 1), 1.5),
    Part.Circle(Vector(116.5, -30.05, 0), Vector(0, 0, 1), 1.5),
    Part.Circle(Vector(126.5, -30.05, 0), Vector(0, 0, 1), 1.5),
    Part.Circle(Vector(71.5, -17.5, 0), Vector(0, 0, 1), 1.5),
    Part.LineSegment(Vector(-68.5, -10, 0), Vector(-74.5, -10, 0)),
    Part.LineSegment(Vector(-74.5, -10, 0), Vector(-74.5, 10, 0)),
    Part.LineSegment(Vector(-74.5, 10, 0), Vector(-68.5, 10, 0)),
    Part.LineSegment(Vector(-68.5, 10, 0), Vector(-68.5, -10, 0)),
    Part.Circle(Vector(-71.5, 17.5, 0), Vector(0, 0, 1), 1.5),
    Part.Circle(Vector(-126.5, 30.05, 0), Vector(0, 0, 1), 1.5),
    Part.Circle(Vector(-116.5, 30.05, 0), Vector(0, 0, 1), 1.5),
    Part.LineSegment(Vector(74.5, -10, 0), Vector(68.5, -10, 0)),
    Part.LineSegment(Vector(68.5, -10, 0), Vector(68.5, 10, 0)),
    Part.LineSegment(Vector(68.5, 10, 0), Vector(74.5, 10, 0)),
    Part.LineSegment(Vector(74.5, 10, 0), Vector(74.5, -10, 0)),
    Part.Circle(Vector(71.5, 17.5, 0), Vector(0, 0, 1), 1.5),
    Part.Circle(Vector(116.5, 30.05, 0), Vector(0, 0, 1), 1.5),
    Part.Circle(Vector(126.5, 30.05, 0), Vector(0, 0, 1), 1.5),
], False)
sketch8.addConstraint([
    Sketcher.Constraint("Coincident", 0, 2, 1, 1),
    Sketcher.Constraint("Coincident", 1, 2, 2, 1),
    Sketcher.Constraint("Coincident", 2, 2, 3, 1),
    Sketcher.Constraint("Coincident", 3, 2, 0, 1),
    Sketcher.Constraint("Coincident", 10, 2, 11, 1),
    Sketcher.Constraint("Coincident", 11, 2, 12, 1),
    Sketcher.Constraint("Coincident", 12, 2, 13, 1),
    Sketcher.Constraint("Coincident", 13, 2, 10, 1),
    Sketcher.Constraint("Coincident", 17, 2, 18, 1),
    Sketcher.Constraint("Coincident", 18, 2, 19, 1),
    Sketcher.Constraint("Coincident", 19, 2, 20, 1),
    Sketcher.Constraint("Coincident", 20, 2, 17, 1),
    Sketcher.Constraint("Vertical", 0),
    Sketcher.Constraint("Horizontal", 1),
    Sketcher.Constraint("Vertical", 2),
    Sketcher.Constraint("Horizontal", 3),
    Sketcher.Constraint("Horizontal", 10),
    Sketcher.Constraint("Vertical", 11),
    Sketcher.Constraint("Horizontal", 12),
    Sketcher.Constraint("Vertical", 13),
    Sketcher.Constraint("Horizontal", 17),
    Sketcher.Constraint("Vertical", 18),
    Sketcher.Constraint("Horizontal", 19),
    Sketcher.Constraint("Vertical", 20),
    Sketcher.Constraint("Equal", 4, 5),
    Sketcher.Constraint("Equal", 5, 6),
    Sketcher.Constraint("Equal", 6, 7),
    Sketcher.Constraint("Equal", 7, 8),
    Sketcher.Constraint("Equal", 8, 9),
    Sketcher.Constraint("Equal", 9, 14),
    Sketcher.Constraint("Equal", 14, 15),
    Sketcher.Constraint("Equal", 15, 16),
    Sketcher.Constraint("Equal", 16, 21),
    Sketcher.Constraint("Equal", 21, 22),
    Sketcher.Constraint("Equal", 22, 23),
    Sketcher.Constraint("Symmetric", 9, 3, 14, 3, -1, 1),
    Sketcher.Constraint("Symmetric", 8, 3, 15, 3, -1, 1),
    Sketcher.Constraint("Symmetric", 7, 3, 16, 3, -1, 1),
    Sketcher.Constraint("Symmetric", 6, 3, 21, 3, -1, 1),
    Sketcher.Constraint("Symmetric", 5, 3, 22, 3, -1, 1),
    Sketcher.Constraint("Symmetric", 4, 3, 23, 3, -1, 1),
    Sketcher.Constraint("Symmetric", 0, 2, 2, 2, -1, 1),
    Sketcher.Constraint("Symmetric", 12, 2, 17, 2, -1, 1),
    Sketcher.Constraint("Symmetric", 10, 2, 19, 2, -1, 1),
    Sketcher.Constraint("Symmetric", 5, 3, 7, 3, -2),
    Sketcher.Constraint("Symmetric", 4, 3, 8, 3, -2),
    Sketcher.Constraint("Symmetric", 6, 3, 9, 3, -2),
    Sketcher.Constraint("Horizontal", 4, 3, 5, 3),
    Sketcher.Constraint("Horizontal", 13, 2, 17, 2),
    Sketcher.Constraint("Diameter", 4, Q("3 mm")),
    Sketcher.Constraint("DistanceX", 1, 1, 1, 2, Q("261 mm")),
    Sketcher.Constraint("DistanceX", 10, 2, 10, 1, Q("6 mm")),
    Sketcher.Constraint("DistanceY", 11, 1, 11, 2, Q("20 mm")),
    Sketcher.Constraint("DistanceY", 0, 2, 0, 1, Q("68.1 mm")),
    Sketcher.Constraint("DistanceX", 4, 3, 5, 3, Q("10 mm")),
    Sketcher.Constraint("DistanceX", 5, 3, 6, 3, Q("45 mm")),
    Sketcher.Constraint("DistanceX", 6, 3, 7, 3, Q("188 mm")),
    Sketcher.Constraint("DistanceY", 6, 3, 14, 3, Q("35 mm")),
    Sketcher.Constraint("DistanceY", 0, 2, 4, 3, Q("4 mm")),
    Sketcher.Constraint("DistanceX", 10, 2, 6, 3, Q("3 mm")),
])
pad5 = body3.newObject("PartDesign::Pad", "Pad004")
pad5.Profile = sketch8
pad5.Length = 6

doc.recompute()
